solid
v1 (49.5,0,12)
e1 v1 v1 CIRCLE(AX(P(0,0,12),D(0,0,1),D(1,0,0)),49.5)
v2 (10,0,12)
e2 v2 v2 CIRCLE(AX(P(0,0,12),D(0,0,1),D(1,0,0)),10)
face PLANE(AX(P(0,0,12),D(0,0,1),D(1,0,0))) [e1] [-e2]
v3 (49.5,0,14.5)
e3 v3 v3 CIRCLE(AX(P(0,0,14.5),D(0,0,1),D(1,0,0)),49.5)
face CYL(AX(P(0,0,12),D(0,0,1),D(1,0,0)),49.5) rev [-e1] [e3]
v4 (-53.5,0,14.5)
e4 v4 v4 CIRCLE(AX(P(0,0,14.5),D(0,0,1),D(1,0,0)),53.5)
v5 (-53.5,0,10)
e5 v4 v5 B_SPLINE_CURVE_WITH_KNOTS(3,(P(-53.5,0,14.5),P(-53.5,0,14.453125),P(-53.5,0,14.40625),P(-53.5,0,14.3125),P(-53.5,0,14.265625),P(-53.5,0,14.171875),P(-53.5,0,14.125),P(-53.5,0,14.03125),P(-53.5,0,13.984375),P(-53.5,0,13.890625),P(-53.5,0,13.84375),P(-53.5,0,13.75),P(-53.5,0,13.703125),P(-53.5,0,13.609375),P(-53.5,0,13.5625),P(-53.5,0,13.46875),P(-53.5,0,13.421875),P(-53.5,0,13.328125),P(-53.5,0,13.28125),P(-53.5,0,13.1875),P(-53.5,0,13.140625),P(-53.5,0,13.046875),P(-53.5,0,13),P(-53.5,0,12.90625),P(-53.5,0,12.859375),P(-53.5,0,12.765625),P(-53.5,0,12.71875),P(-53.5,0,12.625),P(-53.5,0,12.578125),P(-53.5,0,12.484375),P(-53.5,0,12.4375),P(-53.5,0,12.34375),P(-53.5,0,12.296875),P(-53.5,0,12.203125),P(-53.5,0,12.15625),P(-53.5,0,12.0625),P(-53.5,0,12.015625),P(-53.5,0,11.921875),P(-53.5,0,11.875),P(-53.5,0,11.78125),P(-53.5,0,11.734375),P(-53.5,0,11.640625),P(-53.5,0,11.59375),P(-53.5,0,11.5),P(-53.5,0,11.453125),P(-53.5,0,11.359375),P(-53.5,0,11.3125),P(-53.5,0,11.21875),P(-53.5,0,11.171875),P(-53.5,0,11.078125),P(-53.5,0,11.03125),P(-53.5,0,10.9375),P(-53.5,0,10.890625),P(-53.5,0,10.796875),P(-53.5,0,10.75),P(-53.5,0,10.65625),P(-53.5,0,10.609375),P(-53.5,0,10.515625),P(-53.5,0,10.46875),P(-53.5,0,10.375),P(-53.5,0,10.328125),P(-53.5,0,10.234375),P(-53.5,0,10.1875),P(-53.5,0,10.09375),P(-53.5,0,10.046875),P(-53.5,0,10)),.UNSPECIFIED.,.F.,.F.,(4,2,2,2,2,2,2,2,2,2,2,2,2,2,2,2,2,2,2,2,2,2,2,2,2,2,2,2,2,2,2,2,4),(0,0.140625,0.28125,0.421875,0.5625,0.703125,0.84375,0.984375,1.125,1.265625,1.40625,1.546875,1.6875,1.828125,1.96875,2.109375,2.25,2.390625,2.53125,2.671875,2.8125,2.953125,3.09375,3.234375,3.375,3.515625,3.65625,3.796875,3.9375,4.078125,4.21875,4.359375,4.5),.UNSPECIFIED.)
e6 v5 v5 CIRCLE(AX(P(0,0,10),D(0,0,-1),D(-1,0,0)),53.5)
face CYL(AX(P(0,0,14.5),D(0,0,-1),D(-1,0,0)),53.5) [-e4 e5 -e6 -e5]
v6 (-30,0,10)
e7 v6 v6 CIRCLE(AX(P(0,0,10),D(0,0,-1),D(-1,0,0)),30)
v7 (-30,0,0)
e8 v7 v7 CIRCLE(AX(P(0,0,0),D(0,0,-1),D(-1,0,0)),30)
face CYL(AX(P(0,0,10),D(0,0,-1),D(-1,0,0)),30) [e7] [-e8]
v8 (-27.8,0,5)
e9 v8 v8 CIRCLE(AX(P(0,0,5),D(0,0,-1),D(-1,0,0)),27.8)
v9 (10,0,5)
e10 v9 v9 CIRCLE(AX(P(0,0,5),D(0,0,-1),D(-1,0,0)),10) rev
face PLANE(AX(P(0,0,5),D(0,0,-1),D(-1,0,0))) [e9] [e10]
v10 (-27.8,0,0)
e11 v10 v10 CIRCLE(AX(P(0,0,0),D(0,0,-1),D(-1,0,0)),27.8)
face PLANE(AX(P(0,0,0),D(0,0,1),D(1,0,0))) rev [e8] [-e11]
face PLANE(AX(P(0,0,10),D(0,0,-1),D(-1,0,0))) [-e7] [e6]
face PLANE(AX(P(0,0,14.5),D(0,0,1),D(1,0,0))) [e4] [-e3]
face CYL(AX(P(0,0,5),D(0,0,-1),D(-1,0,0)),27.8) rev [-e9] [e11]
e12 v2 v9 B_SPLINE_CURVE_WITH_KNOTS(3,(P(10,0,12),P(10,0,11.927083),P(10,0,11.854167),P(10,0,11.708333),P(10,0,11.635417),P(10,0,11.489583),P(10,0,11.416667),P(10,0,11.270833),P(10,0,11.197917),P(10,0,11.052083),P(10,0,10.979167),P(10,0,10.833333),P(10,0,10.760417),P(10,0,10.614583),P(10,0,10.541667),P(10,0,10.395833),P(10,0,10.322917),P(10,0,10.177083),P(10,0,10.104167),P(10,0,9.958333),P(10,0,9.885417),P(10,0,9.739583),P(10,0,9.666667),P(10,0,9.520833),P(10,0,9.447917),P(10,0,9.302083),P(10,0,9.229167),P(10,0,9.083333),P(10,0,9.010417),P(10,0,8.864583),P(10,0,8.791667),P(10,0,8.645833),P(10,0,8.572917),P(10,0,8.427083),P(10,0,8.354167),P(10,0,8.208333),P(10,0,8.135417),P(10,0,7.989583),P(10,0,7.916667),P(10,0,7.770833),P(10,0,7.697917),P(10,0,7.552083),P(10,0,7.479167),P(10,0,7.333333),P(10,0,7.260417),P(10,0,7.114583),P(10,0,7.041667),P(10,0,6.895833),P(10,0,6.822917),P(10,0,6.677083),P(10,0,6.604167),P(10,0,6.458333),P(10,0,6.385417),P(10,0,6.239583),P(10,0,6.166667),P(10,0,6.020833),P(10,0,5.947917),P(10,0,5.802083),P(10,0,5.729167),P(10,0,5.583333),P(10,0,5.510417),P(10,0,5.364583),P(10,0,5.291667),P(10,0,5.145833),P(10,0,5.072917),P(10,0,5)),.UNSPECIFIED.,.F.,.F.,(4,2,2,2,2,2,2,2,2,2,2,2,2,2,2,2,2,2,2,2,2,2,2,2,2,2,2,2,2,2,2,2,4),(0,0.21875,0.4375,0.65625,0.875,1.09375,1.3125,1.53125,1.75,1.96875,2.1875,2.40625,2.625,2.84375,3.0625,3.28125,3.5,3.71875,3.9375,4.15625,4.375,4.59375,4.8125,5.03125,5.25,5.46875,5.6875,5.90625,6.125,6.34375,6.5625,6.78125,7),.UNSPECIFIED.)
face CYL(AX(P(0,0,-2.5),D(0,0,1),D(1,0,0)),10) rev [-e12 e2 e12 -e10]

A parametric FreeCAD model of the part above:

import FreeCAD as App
import Part
import Sketcher

V = App.Vector
Q = App.Units.Quantity

doc = App.newDocument("Part")
body = doc.addObject("PartDesign::Body", "Body")

sketch1 = body.newObject("Sketcher::SketchObject", "Sketch")
sketch1.AttachmentSupport = (doc.getObject("XY_Plane"), [""])
sketch1.MapMode = "FlatFace"
sketch1.addGeometry(Part.Circle(V(0, 0, 0), V(0, 0, 1), 53.5), False)
sketch1.addConstraint([
    Sketcher.Constraint("Coincident", 0, 3, -1, 1),
    Sketcher.Constraint("Diameter", 0, Q("107 mm")),
])
pad1 = body.newObject("PartDesign::Pad", "Pad")
pad1.Profile = sketch1
pad1.Length = 14.5

sketch2 = body.newObject("Sketcher::SketchObject", "Sketch001")
sketch2.AttachmentSupport = (doc.getObject("XY_Plane"), [""])
sketch2.MapMode = "FlatFace"
sketch2.AttachmentOffset = App.Placement(V(0, 0, 14.5), App.Rotation())
sketch2.addGeometry(Part.Circle(V(0, 0, 0), V(0, 0, 1), 49.5), False)
sketch2.addConstraint([
    Sketcher.Constraint("Coincident", 0, 3, -1, 1),
    Sketcher.Constraint("Diameter", 0, Q("99 mm")),
])
pocket1 = body.newObject("PartDesign::Pocket", "Pocket")
pocket1.Profile = sketch2
pocket1.Length = 2.5

sketch3 = body.newObject("Sketcher::SketchObject", "Sketch002")
sketch3.AttachmentSupport = (doc.getObject("XY_Plane"), [""])
sketch3.MapMode = "FlatFace"
sketch3.AttachmentOffset = App.Placement(V(0, 0, 12), App.Rotation())
sketch3.addGeometry(Part.Circle(V(0, 0, 0), V(0, 0, 1), 10), False)
sketch3.addConstraint([
    Sketcher.Constraint("Coincident", 0, 3, -1, 1),
    Sketcher.Constraint("Diameter", 0, Q("20 mm")),
])
pocket2 = body.newObject("PartDesign::Pocket", "Pocket001")
pocket2.Profile = sketch3
pocket2.Length = 14.5

sketch4 = body.newObject("Sketcher::SketchObject", "Sketch003")
sketch4.AttachmentSupport = (doc.getObject("XY_Plane"), [""])
sketch4.MapMode = "FlatFace"
sketch4.addGeometry([
    Part.Circle(V(0, 0, 0), V(0, 0, 1), 53.5),
    Part.Circle(V(0, 0, 0), V(0, 0, 1), 30),
], False)
sketch4.addConstraint([
    Sketcher.Constraint("Coincident", 0, 3, -1, 1),
    Sketcher.Constraint("Coincident", 1, 3, -1, 1),
    Sketcher.Constraint("Diameter", 0, Q("107 mm")),
    Sketcher.Constraint("Diameter", 1, Q("60 mm")),
])
pocket3 = body.newObject("PartDesign::Pocket", "Pocket002")
pocket3.Profile = sketch4
pocket3.Length = 10
pocket3.Reversed = True

sketch5 = body.newObject("Sketcher::SketchObject", "Sketch004")
sketch5.AttachmentSupport = (doc.getObject("XY_Plane"), [""])
sketch5.MapMode = "FlatFace"
sketch5.addGeometry(Part.Circle(V(0, 0, 0), V(0, 0, 1), 27.8), False)
sketch5.addConstraint([
    Sketcher.Constraint("Coincident", 0, 3, -1, 1),
    Sketcher.Constraint("Diameter", 0, Q("55.6 mm")),
])
pocket4 = body.newObject("PartDesign::Pocket", "Pocket003")
pocket4.Profile = sketch5
pocket4.Length = 5
pocket4.Reversed = True

doc.recompute()
